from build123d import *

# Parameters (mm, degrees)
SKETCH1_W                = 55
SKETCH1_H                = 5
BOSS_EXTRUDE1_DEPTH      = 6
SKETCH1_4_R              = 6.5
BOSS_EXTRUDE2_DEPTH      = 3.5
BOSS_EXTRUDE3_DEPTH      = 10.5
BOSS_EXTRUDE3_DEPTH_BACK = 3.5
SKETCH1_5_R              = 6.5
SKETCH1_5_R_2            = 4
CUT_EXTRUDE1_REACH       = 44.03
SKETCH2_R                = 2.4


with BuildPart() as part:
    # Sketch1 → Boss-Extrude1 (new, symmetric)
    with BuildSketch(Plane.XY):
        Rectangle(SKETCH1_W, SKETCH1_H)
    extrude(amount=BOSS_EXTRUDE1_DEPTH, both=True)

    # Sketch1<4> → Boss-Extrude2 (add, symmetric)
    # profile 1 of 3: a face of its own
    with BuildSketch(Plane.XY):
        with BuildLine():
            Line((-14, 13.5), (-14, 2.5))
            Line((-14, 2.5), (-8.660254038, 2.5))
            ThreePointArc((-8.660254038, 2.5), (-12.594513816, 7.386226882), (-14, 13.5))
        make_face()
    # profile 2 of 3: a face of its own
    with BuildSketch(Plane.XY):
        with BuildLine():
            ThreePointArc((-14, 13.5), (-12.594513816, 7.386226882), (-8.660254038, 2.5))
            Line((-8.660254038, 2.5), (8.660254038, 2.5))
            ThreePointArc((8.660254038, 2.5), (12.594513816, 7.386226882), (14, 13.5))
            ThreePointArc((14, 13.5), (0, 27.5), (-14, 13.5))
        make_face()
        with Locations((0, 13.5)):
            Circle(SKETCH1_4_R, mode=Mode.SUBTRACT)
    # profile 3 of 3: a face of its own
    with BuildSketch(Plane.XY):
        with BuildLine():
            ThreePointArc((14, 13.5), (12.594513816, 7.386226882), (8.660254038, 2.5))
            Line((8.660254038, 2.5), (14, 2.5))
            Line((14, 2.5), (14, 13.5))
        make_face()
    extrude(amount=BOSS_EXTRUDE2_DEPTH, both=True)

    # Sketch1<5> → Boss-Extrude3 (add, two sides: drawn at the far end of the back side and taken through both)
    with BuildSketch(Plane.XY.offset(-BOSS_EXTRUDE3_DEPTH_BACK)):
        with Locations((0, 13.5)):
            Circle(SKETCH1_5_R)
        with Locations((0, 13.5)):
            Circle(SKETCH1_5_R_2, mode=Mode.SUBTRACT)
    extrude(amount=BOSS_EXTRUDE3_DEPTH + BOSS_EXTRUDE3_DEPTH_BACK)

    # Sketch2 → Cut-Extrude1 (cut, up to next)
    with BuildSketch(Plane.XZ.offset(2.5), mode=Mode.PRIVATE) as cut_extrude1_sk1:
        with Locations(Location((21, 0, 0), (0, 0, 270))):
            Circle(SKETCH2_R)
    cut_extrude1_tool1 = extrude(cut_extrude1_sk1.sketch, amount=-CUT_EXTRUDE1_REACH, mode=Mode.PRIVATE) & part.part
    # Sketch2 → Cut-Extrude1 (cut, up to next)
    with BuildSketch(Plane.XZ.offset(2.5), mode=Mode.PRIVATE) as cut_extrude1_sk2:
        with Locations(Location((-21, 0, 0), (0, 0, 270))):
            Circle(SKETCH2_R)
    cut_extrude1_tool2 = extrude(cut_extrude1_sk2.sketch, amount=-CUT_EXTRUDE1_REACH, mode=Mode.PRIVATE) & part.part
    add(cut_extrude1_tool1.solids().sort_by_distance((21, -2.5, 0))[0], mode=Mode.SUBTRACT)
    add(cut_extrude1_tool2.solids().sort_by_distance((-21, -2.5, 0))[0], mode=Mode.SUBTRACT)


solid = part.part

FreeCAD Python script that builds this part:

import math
import FreeCAD as App
import Part
import Sketcher

V = App.Vector

doc = App.newDocument("Part")
body = doc.addObject("PartDesign::Body", "Body")

sketch1 = body.newObject("Sketcher::SketchObject", "Sketch")
sketch1.AttachmentSupport = (doc.getObject("XY_Plane"), [""])
sketch1.MapMode = "FlatFace"
sketch1.addGeometry(Part.LineSegment(V(-28, 2, 0), V(-28, -2, 0)), False)
sketch1.addGeometry(Part.LineSegment(V(-28, -2, 0), V(28, -2, 0)), False)
sketch1.addGeometry(Part.LineSegment(V(28, -2, 0), V(28, 2, 0)), False)
sketch1.addGeometry(Part.LineSegment(V(28, 2, 0), V(-28, 2, 0)), False)
sketch1.addConstraint(Sketcher.Constraint("Coincident", 0, 2, 1, 1))
sketch1.addConstraint(Sketcher.Constraint("Coincident", 1, 2, 2, 1))
sketch1.addConstraint(Sketcher.Constraint("Coincident", 2, 2, 3, 1))
sketch1.addConstraint(Sketcher.Constraint("Coincident", 3, 2, 0, 1))
sketch1.addConstraint(Sketcher.Constraint("Vertical", 0))
sketch1.addConstraint(Sketcher.Constraint("Horizontal", 1))
sketch1.addConstraint(Sketcher.Constraint("Vertical", 2))
sketch1.addConstraint(Sketcher.Constraint("Horizontal", 3))
sketch1.addConstraint(Sketcher.Constraint("Symmetric", 0, 2, 2, 2, -1, 1))
sketch1.addConstraint(Sketcher.Constraint("DistanceX", 1, 1, 1, 2, 55.0))
sketch1.addConstraint(Sketcher.Constraint("DistanceY", 0, 2, 0, 1, 5.0))
pad1 = body.newObject("PartDesign::Pad", "Pad")
pad1.Profile = sketch1
pad1.Length = 12
pad1.Midplane = True

sketch2 = body.newObject("Sketcher::SketchObject", "Sketch001")
sketch2.AttachmentSupport = (doc.getObject("XY_Plane"), [""])
sketch2.MapMode = "FlatFace"
sketch2.addGeometry(Part.LineSegment(V(-14, 14, 0), V(-14, 2, 0)), False)
sketch2.addGeometry(Part.LineSegment(V(-14, 2, 0), V(14, 2, 0)), False)
sketch2.addGeometry(Part.LineSegment(V(14, 2, 0), V(14, 14, 0)), False)
sketch2.addGeometry(Part.ArcOfCircle(Part.Circle(V(0, 14, 0), V(0, 0, 1), 14), math.radians(0), math.radians(180)), False)
sketch2.addGeometry(Part.Circle(V(0, 14, 0), V(0, 0, 1), 6), False)
sketch2.addConstraint(Sketcher.Constraint("Coincident", 0, 2, 1, 1))
sketch2.addConstraint(Sketcher.Constraint("Coincident", 1, 2, 2, 1))
sketch2.addConstraint(Sketcher.Constraint("Tangent", 2, 2, 3, 1))
sketch2.addConstraint(Sketcher.Constraint("Tangent", 3, 2, 0, 1))
sketch2.addConstraint(Sketcher.Constraint("Vertical", 0))
sketch2.addConstraint(Sketcher.Constraint("Horizontal", 1))
sketch2.addConstraint(Sketcher.Constraint("Vertical", 2))
sketch2.addConstraint(Sketcher.Constraint("Coincident", 4, 3, 3, 3))
sketch2.addConstraint(Sketcher.Constraint("PointOnObject", 3, 3, -2))
sketch2.addConstraint(Sketcher.Constraint("Diameter", 4, 13.0))
sketch2.addConstraint(Sketcher.Constraint("Radius", 3, 14.0))
sketch2.addConstraint(Sketcher.Constraint("DistanceY", 0, 2, 0, 1, 11.0))
sketch2.addConstraint(Sketcher.Constraint("DistanceY", -1, 1, 3, 3, 13.5))
pad2 = body.newObject("PartDesign::Pad", "Pad001")
pad2.Profile = sketch2
pad2.Length = 7
pad2.Midplane = True

sketch3 = body.newObject("Sketcher::SketchObject", "Sketch002")
sketch3.AttachmentSupport = (doc.getObject("XY_Plane"), [""])
sketch3.MapMode = "FlatFace"
sketch3.addGeometry(Part.Circle(V(0, 13.5, 0), V(0, 0, 1), 6.5), False)
sketch3.addGeometry(Part.Circle(V(0, 13.5, 0), V(0, 0, 1), 4), False)
sketch3.addConstraint(Sketcher.Constraint("Coincident", 1, 3, 0, 3))
sketch3.addConstraint(Sketcher.Constraint("PointOnObject", 0, 3, -2))
sketch3.addConstraint(Sketcher.Constraint("Diameter", 0, 13.0))
sketch3.addConstraint(Sketcher.Constraint("Diameter", 1, 8.0))
sketch3.addConstraint(Sketcher.Constraint("DistanceY", -1, 1, 0, 3, 13.5))
pad3 = body.newObject("PartDesign::Pad", "Pad002")
pad3.Profile = sketch3
pad3.Type = "TwoLengths"
pad3.Length = 10.5
pad3.Length2 = 3.5

sketch4 = body.newObject("Sketcher::SketchObject", "Sketch003")
sketch4.AttachmentSupport = (doc.getObject("XZ_Plane"), [""])
sketch4.MapMode = "FlatFace"
sketch4.AttachmentOffset = App.Placement(V(0, 0, 2.5), App.Rotation())
sketch4.addGeometry(Part.Circle(V(21, 0, 0), V(0, 0, 1), 2.4), False)
sketch4.addConstraint(Sketcher.Constraint("PointOnObject", 0, 3, -1))
sketch4.addConstraint(Sketcher.Constraint("Diameter", 0, 4.8))
sketch4.addConstraint(Sketcher.Constraint("DistanceX", -1, 1, 0, 3, 21.0))
pocket1 = body.newObject("PartDesign::Pocket", "Pocket")
pocket1.Profile = sketch4
pocket1.Type = "UpToFirst"

sketch5 = body.newObject("Sketcher::SketchObject", "Sketch004")
sketch5.AttachmentSupport = (doc.getObject("XZ_Plane"), [""])
sketch5.MapMode = "FlatFace"
sketch5.AttachmentOffset = App.Placement(V(0, 0, 2.5), App.Rotation())
sketch5.addGeometry(Part.Circle(V(-21, 0, 0), V(0, 0, 1), 2.4), False)
sketch5.addConstraint(Sketcher.Constraint("PointOnObject", 0, 3, -1))
sketch5.addConstraint(Sketcher.Constraint("Diameter", 0, 4.8))
sketch5.addConstraint(Sketcher.Constraint("DistanceX", 0, 3, -1, 1, 21.0))
pocket2 = body.newObject("PartDesign::Pocket", "Pocket001")
pocket2.Profile = sketch5
pocket2.Type = "UpToFirst"

doc.recompute()
